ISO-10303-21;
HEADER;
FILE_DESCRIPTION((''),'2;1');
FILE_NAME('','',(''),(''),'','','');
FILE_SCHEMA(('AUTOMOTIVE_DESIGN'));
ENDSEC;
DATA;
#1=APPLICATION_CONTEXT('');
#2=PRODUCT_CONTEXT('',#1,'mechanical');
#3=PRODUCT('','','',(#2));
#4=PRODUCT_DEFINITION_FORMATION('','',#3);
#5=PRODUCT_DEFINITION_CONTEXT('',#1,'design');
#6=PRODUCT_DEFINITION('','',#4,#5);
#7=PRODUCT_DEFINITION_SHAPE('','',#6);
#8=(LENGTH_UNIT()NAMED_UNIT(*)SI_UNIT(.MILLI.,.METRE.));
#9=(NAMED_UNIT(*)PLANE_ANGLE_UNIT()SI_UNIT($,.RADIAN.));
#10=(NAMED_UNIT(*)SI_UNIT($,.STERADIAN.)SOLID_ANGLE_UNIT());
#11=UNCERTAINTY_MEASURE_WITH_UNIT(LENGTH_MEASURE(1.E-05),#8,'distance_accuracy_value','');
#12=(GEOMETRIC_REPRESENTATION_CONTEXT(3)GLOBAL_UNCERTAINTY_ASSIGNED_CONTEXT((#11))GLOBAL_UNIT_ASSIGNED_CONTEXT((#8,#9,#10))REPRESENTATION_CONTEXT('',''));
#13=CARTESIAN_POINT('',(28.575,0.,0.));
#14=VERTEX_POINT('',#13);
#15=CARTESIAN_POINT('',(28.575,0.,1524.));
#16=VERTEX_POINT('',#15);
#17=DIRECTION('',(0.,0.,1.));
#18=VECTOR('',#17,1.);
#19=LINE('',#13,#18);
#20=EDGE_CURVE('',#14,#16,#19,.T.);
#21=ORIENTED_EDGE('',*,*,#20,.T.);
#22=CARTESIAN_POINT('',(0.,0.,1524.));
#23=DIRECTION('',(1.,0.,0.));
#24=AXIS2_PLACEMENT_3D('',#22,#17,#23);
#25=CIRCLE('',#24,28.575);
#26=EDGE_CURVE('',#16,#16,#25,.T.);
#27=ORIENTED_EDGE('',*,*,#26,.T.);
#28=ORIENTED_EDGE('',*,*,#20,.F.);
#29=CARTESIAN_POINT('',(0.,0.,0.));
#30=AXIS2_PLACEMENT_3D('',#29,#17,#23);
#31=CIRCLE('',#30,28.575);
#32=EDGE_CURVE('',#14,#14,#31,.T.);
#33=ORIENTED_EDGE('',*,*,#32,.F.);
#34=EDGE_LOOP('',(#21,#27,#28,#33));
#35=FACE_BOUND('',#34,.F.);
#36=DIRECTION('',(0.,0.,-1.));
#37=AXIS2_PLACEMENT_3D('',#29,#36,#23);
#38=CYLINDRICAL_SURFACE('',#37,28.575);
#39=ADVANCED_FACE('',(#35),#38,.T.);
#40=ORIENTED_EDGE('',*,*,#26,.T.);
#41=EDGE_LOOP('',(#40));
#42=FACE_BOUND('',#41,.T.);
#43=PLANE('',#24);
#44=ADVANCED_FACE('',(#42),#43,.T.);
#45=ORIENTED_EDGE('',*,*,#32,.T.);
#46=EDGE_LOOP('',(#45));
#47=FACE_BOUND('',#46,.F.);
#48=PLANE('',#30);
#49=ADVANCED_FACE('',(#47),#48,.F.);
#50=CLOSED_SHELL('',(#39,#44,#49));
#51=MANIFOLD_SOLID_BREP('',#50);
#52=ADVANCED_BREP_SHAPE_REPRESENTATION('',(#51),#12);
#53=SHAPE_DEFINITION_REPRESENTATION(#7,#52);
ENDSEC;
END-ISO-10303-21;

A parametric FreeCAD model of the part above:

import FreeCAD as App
import Part
import Sketcher
Q = App.Units.Quantity

doc = App.newDocument("Part")
body = doc.addObject("PartDesign::Body", "Body")

# Sketch on XY plane
sketch1 = body.newObject("Sketcher::SketchObject", "Sketch")
sketch1.AttachmentSupport = (doc.getObject("XY_Plane"), [""])
sketch1.MapMode = "FlatFace"
sketch1.addGeometry(Part.Circle(App.Vector(0, 0, 0), App.Vector(0, 0, 1), 29), False)
sketch1.addConstraint(Sketcher.Constraint("Coincident", 0, 3, -1, 1))
sketch1.addConstraint(Sketcher.Constraint("Diameter", 0, Q("2.25 in")))
pad1 = body.newObject("PartDesign::Pad", "Pad")
pad1.Profile = sketch1
pad1.Length = Q("60 in")

doc.recompute()
